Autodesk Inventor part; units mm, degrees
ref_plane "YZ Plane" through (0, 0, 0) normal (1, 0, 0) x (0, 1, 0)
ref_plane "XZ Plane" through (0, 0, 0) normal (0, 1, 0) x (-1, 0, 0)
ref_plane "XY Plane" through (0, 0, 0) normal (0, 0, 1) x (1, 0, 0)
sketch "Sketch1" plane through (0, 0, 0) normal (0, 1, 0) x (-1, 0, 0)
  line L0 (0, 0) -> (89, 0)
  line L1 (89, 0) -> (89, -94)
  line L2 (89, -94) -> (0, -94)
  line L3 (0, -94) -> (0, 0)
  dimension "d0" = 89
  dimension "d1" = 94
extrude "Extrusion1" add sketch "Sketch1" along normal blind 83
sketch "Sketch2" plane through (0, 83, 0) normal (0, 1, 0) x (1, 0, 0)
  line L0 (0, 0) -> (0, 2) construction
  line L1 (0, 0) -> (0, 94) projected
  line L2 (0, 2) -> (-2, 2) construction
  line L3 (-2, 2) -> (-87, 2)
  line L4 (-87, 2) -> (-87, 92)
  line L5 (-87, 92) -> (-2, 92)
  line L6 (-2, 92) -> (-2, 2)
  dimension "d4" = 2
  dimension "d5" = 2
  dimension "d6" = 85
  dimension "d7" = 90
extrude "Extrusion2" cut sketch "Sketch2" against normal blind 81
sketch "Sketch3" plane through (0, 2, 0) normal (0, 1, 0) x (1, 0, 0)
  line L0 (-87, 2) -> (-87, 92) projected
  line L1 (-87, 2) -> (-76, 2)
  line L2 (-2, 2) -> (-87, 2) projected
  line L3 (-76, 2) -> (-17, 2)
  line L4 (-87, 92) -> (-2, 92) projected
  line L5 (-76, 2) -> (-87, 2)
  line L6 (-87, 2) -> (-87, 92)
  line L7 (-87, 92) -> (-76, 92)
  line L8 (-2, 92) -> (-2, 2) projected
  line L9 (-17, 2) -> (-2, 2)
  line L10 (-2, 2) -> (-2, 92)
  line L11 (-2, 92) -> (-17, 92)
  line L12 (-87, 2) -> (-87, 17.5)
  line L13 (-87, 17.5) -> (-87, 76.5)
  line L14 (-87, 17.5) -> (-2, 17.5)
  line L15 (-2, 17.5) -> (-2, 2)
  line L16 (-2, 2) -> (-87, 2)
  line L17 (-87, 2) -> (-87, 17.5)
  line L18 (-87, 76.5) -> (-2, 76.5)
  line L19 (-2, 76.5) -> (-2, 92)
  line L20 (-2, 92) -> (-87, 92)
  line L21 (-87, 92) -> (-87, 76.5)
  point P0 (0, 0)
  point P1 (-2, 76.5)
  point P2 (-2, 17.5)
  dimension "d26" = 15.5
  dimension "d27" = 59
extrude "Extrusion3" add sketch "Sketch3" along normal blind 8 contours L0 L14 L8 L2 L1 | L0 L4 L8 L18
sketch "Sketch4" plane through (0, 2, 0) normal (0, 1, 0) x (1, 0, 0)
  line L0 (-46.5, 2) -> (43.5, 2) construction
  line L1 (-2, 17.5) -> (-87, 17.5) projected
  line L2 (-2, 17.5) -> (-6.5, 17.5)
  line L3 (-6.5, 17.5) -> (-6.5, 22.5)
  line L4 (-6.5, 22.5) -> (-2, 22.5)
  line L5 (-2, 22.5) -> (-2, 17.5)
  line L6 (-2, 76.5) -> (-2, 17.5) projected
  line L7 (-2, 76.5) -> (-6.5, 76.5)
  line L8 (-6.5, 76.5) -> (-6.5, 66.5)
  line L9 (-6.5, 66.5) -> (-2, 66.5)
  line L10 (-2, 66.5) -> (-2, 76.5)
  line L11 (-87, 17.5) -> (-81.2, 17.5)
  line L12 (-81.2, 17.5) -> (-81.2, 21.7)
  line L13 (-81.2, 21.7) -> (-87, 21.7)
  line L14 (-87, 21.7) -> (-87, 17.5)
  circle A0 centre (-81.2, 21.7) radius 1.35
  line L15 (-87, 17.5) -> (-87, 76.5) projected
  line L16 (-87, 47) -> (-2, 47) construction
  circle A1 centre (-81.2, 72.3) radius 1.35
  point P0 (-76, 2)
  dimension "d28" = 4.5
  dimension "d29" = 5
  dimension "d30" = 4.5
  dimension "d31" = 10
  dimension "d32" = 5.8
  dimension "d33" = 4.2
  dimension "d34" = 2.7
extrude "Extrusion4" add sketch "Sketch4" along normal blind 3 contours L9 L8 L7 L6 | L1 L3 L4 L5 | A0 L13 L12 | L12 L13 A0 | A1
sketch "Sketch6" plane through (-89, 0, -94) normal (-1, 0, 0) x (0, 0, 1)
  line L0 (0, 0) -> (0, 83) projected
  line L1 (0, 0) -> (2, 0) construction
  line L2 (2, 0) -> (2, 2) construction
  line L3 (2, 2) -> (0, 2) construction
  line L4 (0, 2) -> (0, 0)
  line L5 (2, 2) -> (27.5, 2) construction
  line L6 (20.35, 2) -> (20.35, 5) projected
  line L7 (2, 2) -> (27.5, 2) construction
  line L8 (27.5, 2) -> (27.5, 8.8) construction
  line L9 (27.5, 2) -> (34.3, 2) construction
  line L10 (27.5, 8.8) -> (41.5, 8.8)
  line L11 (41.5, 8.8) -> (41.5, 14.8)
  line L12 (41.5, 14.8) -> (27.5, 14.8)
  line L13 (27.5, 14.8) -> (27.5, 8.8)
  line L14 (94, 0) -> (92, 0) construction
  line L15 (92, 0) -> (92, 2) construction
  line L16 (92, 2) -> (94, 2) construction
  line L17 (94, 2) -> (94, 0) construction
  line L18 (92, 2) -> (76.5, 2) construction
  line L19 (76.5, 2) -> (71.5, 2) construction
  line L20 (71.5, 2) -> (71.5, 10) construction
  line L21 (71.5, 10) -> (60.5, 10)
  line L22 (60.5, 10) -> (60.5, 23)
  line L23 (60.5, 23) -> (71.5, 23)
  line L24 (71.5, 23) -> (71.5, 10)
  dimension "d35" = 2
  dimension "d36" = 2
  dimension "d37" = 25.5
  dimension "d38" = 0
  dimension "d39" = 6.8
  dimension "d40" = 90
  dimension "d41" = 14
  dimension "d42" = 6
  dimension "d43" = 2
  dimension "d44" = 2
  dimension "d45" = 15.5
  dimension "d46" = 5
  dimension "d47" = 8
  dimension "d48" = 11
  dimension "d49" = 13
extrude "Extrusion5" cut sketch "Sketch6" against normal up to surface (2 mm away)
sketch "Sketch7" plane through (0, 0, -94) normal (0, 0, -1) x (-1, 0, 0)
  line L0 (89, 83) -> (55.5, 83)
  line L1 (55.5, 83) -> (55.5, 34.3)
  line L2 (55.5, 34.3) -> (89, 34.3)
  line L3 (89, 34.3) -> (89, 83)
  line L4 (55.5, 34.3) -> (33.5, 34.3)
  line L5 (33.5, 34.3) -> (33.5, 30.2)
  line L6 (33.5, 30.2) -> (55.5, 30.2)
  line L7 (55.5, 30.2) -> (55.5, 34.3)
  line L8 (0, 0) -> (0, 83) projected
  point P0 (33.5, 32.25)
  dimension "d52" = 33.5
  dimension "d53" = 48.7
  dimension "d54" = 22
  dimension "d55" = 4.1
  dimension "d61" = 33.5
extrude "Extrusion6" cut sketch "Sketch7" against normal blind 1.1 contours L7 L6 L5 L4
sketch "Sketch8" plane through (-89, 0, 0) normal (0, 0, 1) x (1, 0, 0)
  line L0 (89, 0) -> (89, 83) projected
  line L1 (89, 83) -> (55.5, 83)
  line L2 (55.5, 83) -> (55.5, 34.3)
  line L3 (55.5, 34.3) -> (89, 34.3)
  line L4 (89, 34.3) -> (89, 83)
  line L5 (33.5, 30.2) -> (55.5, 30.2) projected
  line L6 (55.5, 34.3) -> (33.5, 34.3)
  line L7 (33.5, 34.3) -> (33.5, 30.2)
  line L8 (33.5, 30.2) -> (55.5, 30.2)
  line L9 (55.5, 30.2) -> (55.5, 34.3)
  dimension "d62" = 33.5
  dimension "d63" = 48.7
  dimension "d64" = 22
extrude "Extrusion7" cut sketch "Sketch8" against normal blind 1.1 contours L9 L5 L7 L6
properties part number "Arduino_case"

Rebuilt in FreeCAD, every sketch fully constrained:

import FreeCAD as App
import Part
import Sketcher

V = App.Vector
Q = App.Units.Quantity

doc = App.newDocument("Part")
body = doc.addObject("PartDesign::Body", "Body")

# Sketch on XZ plane
sketch1 = body.newObject("Sketcher::SketchObject", "Sketch")
sketch1.AttachmentSupport = (doc.getObject("XZ_Plane"), [""])
sketch1.MapMode = "FlatFace"
sketch1.addGeometry([
    Part.LineSegment(V(-89, 0, 0), V(0, 0, 0)),
    Part.LineSegment(V(0, 0, 0), V(0, -94, 0)),
    Part.LineSegment(V(0, -94, 0), V(-89, -94, 0)),
    Part.LineSegment(V(-89, -94, 0), V(-89, 0, 0)),
], False)
sketch1.addConstraint([
    Sketcher.Constraint("Coincident", 0, 2, 1, 1),
    Sketcher.Constraint("Coincident", 1, 2, 2, 1),
    Sketcher.Constraint("Coincident", 2, 2, 3, 1),
    Sketcher.Constraint("Coincident", 3, 2, 0, 1),
    Sketcher.Constraint("Horizontal", 0),
    Sketcher.Constraint("Vertical", 1),
    Sketcher.Constraint("Horizontal", 2),
    Sketcher.Constraint("Vertical", 3),
    Sketcher.Constraint("Coincident", 0, 2, -1, 1),
    Sketcher.Constraint("DistanceX", 0, 1, 0, 2, Q("89 mm")),
    Sketcher.Constraint("DistanceY", 1, 2, 1, 1, Q("94 mm")),
])
pad1 = body.newObject("PartDesign::Pad", "Pad")
pad1.Profile = sketch1
pad1.Length = 83
pad1.Reversed = True

# Sketch on XZ plane
sketch2 = body.newObject("Sketcher::SketchObject", "Sketch001")
sketch2.AttachmentSupport = (doc.getObject("XZ_Plane"), [""])
sketch2.MapMode = "FlatFace"
sketch2.AttachmentOffset = App.Placement(V(0, 0, -83), App.Rotation())
sketch2.addGeometry([
    Part.LineSegment(V(-87, -2, 0), V(-2, -2, 0)),
    Part.LineSegment(V(-2, -2, 0), V(-2, -92, 0)),
    Part.LineSegment(V(-2, -92, 0), V(-87, -92, 0)),
    Part.LineSegment(V(-87, -92, 0), V(-87, -2, 0)),
], False)
sketch2.addConstraint([
    Sketcher.Constraint("Coincident", 0, 2, 1, 1),
    Sketcher.Constraint("Coincident", 1, 2, 2, 1),
    Sketcher.Constraint("Coincident", 2, 2, 3, 1),
    Sketcher.Constraint("Coincident", 3, 2, 0, 1),
    Sketcher.Constraint("Horizontal", 0),
    Sketcher.Constraint("Vertical", 1),
    Sketcher.Constraint("Horizontal", 2),
    Sketcher.Constraint("Vertical", 3),
    Sketcher.Constraint("DistanceX", 0, 1, 0, 2, Q("85 mm")),
    Sketcher.Constraint("DistanceY", 1, 2, 1, 1, Q("90 mm")),
    Sketcher.Constraint("DistanceX", 0, 2, -1, 1, Q("2 mm")),
    Sketcher.Constraint("DistanceY", 0, 2, -1, 1, Q("2 mm")),
])
pocket1 = body.newObject("PartDesign::Pocket", "Pocket")
pocket1.Profile = sketch2
pocket1.Length = 81
pocket1.Reversed = True

# Sketch on XZ plane
sketch3 = body.newObject("Sketcher::SketchObject", "Sketch002")
sketch3.AttachmentSupport = (doc.getObject("XZ_Plane"), [""])
sketch3.MapMode = "FlatFace"
sketch3.AttachmentOffset = App.Placement(V(0, 0, -2), App.Rotation())
sketch3.addGeometry([
    Part.LineSegment(V(-87, -17.5, 0), V(-87, -2, 0)),  # 0
    Part.LineSegment(V(-87, -2, 0), V(-2, -2, 0)),  # 1
    Part.LineSegment(V(-2, -2, 0), V(-2, -17.5, 0)),  # 2
    Part.LineSegment(V(-2, -17.5, 0), V(-87, -17.5, 0)),  # 3
    Part.LineSegment(V(-87, -92, 0), V(-87, -76.5, 0)),  # 4
    Part.LineSegment(V(-87, -76.5, 0), V(-2, -76.5, 0)),  # 5
    Part.LineSegment(V(-2, -76.5, 0), V(-2, -92, 0)),  # 6
    Part.LineSegment(V(-2, -92, 0), V(-87, -92, 0)),  # 7
], False)
sketch3.addConstraint([
    Sketcher.Constraint("Coincident", 0, 2, 1, 1),
    Sketcher.Constraint("Coincident", 1, 2, 2, 1),
    Sketcher.Constraint("Coincident", 2, 2, 3, 1),
    Sketcher.Constraint("Coincident", 3, 2, 0, 1),
    Sketcher.Constraint("Coincident", 4, 2, 5, 1),
    Sketcher.Constraint("Coincident", 5, 2, 6, 1),
    Sketcher.Constraint("Coincident", 6, 2, 7, 1),
    Sketcher.Constraint("Coincident", 7, 2, 4, 1),
    Sketcher.Constraint("Vertical", 0),
    Sketcher.Constraint("Horizontal", 1),
    Sketcher.Constraint("Vertical", 2),
    Sketcher.Constraint("Horizontal", 3),
    Sketcher.Constraint("Vertical", 4),
    Sketcher.Constraint("Horizontal", 5),
    Sketcher.Constraint("Vertical", 6),
    Sketcher.Constraint("Horizontal", 7),
    Sketcher.Constraint("Vertical", 3, 2, 4, 2),
    Sketcher.Constraint("Vertical", 2, 2, 5, 2),
    Sketcher.Constraint("Equal", 2, 4),
    Sketcher.Constraint("DistanceY", 0, 1, 0, 2, Q("15.5 mm")),
    Sketcher.Constraint("DistanceY", 4, 2, 3, 2, Q("59 mm")),
    Sketcher.Constraint("DistanceX", 1, 1, 1, 2, Q("85 mm")),
    Sketcher.Constraint("DistanceX", 0, 2, -1, 1, Q("87 mm")),
    Sketcher.Constraint("DistanceY", 0, 2, -1, 1, Q("2 mm")),
])
pad2 = body.newObject("PartDesign::Pad", "Pad001")
pad2.Profile = sketch3
pad2.Length = 8
pad2.Reversed = True

# Sketch on XZ plane
sketch4 = body.newObject("Sketcher::SketchObject", "Sketch003")
sketch4.AttachmentSupport = (doc.getObject("XZ_Plane"), [""])
sketch4.MapMode = "FlatFace"
sketch4.AttachmentOffset = App.Placement(V(0, 0, -2), App.Rotation())
sketch4.addGeometry([
    Part.LineSegment(V(-6.5, -66.5, 0), V(-2, -66.5, 0)),  # 0
    Part.LineSegment(V(-2, -66.5, 0), V(-2, -76.5, 0)),  # 1
    Part.LineSegment(V(-2, -76.5, 0), V(-6.5, -76.5, 0)),  # 2
    Part.LineSegment(V(-6.5, -76.5, 0), V(-6.5, -66.5, 0)),  # 3
    Part.LineSegment(V(-6.5, -17.5, 0), V(-2, -17.5, 0)),  # 4
    Part.LineSegment(V(-2, -17.5, 0), V(-2, -22.5, 0)),  # 5
    Part.LineSegment(V(-2, -22.5, 0), V(-6.5, -22.5, 0)),  # 6
    Part.LineSegment(V(-6.5, -22.5, 0), V(-6.5, -17.5, 0)),  # 7
    Part.Circle(V(-81.2, -21.7, 0), V(0, 0, 1), 1.35),  # 8
    Part.Circle(V(-81.2, -72.3, 0), V(0, 0, 1), 1.35),  # 9
], False)
sketch4.addConstraint([
    Sketcher.Constraint("Coincident", 0, 2, 1, 1),
    Sketcher.Constraint("Coincident", 1, 2, 2, 1),
    Sketcher.Constraint("Coincident", 2, 2, 3, 1),
    Sketcher.Constraint("Coincident", 3, 2, 0, 1),
    Sketcher.Constraint("Coincident", 4, 2, 5, 1),
    Sketcher.Constraint("Coincident", 5, 2, 6, 1),
    Sketcher.Constraint("Coincident", 6, 2, 7, 1),
    Sketcher.Constraint("Coincident", 7, 2, 4, 1),
    Sketcher.Constraint("Horizontal", 0),
    Sketcher.Constraint("Vertical", 1),
    Sketcher.Constraint("Horizontal", 2),
    Sketcher.Constraint("Vertical", 3),
    Sketcher.Constraint("Horizontal", 4),
    Sketcher.Constraint("Vertical", 5),
    Sketcher.Constraint("Horizontal", 6),
    Sketcher.Constraint("Vertical", 7),
    Sketcher.Constraint("Equal", 8, 9),
    Sketcher.Constraint("Vertical", 8, 3, 9, 3),
    Sketcher.Constraint("Vertical", 1, 2, 4, 2),
    Sketcher.Constraint("Vertical", 3, 2, 6, 2),
    Sketcher.Constraint("Diameter", 8, Q("2.7 mm")),
    Sketcher.Constraint("DistanceY", 1, 2, 1, 1, Q("10 mm")),
    Sketcher.Constraint("DistanceY", 5, 2, 5, 1, Q("5 mm")),
    Sketcher.Constraint("DistanceX", 0, 1, 0, 2, Q("4.5 mm")),
    Sketcher.Constraint("DistanceY", 9, 3, 0, 2, Q("5.8 mm")),
    Sketcher.Constraint("DistanceY", 8, 3, 4, 2, Q("4.2 mm")),
    Sketcher.Constraint("DistanceX", 0, 2, -1, 1, Q("2 mm")),
    Sketcher.Constraint("DistanceY", 0, 2, 4, 2, Q("49 mm")),
    Sketcher.Constraint("DistanceX", 8, 3, -1, 1, Q("81.2 mm")),
    Sketcher.Constraint("DistanceY", 8, 3, -1, 1, Q("21.7 mm")),
])
pad3 = body.newObject("PartDesign::Pad", "Pad002")
pad3.Profile = sketch4
pad3.Length = 3
pad3.Reversed = True

# Sketch on YZ plane
sketch5 = body.newObject("Sketcher::SketchObject", "Sketch004")
sketch5.AttachmentSupport = (doc.getObject("YZ_Plane"), [""])
sketch5.MapMode = "FlatFace"
sketch5.AttachmentOffset = App.Placement(V(0, 0, -89), App.Rotation())
sketch5.addGeometry([
    Part.LineSegment(V(14.8, -66.5, 0), V(8.8, -66.5, 0)),  # 0
    Part.LineSegment(V(8.8, -66.5, 0), V(8.8, -52.5, 0)),  # 1
    Part.LineSegment(V(8.8, -52.5, 0), V(14.8, -52.5, 0)),  # 2
    Part.LineSegment(V(14.8, -52.5, 0), V(14.8, -66.5, 0)),  # 3
    Part.LineSegment(V(10, -33.5, 0), V(10, -22.5, 0)),  # 4
    Part.LineSegment(V(10, -22.5, 0), V(23, -22.5, 0)),  # 5
    Part.LineSegment(V(23, -22.5, 0), V(23, -33.5, 0)),  # 6
    Part.LineSegment(V(23, -33.5, 0), V(10, -33.5, 0)),  # 7
], False)
sketch5.addConstraint([
    Sketcher.Constraint("Coincident", 0, 2, 1, 1),
    Sketcher.Constraint("Coincident", 1, 2, 2, 1),
    Sketcher.Constraint("Coincident", 2, 2, 3, 1),
    Sketcher.Constraint("Coincident", 3, 2, 0, 1),
    Sketcher.Constraint("Coincident", 4, 2, 5, 1),
    Sketcher.Constraint("Coincident", 5, 2, 6, 1),
    Sketcher.Constraint("Coincident", 6, 2, 7, 1),
    Sketcher.Constraint("Coincident", 7, 2, 4, 1),
    Sketcher.Constraint("Horizontal", 0),
    Sketcher.Constraint("Vertical", 1),
    Sketcher.Constraint("Horizontal", 2),
    Sketcher.Constraint("Vertical", 3),
    Sketcher.Constraint("Vertical", 4),
    Sketcher.Constraint("Horizontal", 5),
    Sketcher.Constraint("Vertical", 6),
    Sketcher.Constraint("Horizontal", 7),
    Sketcher.Constraint("DistanceX", 0, 2, 0, 1, Q("6 mm")),
    Sketcher.Constraint("DistanceX", 5, 1, 5, 2, Q("13 mm")),
    Sketcher.Constraint("DistanceY", 1, 1, 1, 2, Q("14 mm")),
    Sketcher.Constraint("DistanceY", 4, 1, 4, 2, Q("11 mm")),
    Sketcher.Constraint("DistanceX", -1, 1, 4, 2, Q("10 mm")),
    Sketcher.Constraint("DistanceY", 1, 2, 4, 2, Q("30 mm")),
    Sketcher.Constraint("DistanceX", -1, 1, 0, 2, Q("8.8 mm")),
    Sketcher.Constraint("DistanceY", 0, 2, -1, 1, Q("66.5 mm")),
])
pocket2 = body.newObject("PartDesign::Pocket", "Pocket001")
pocket2.Profile = sketch5
pocket2.Length = 2
pocket2.Reversed = True

# Sketch on XY plane
sketch6 = body.newObject("Sketcher::SketchObject", "Sketch005")
sketch6.AttachmentSupport = (doc.getObject("XY_Plane"), [""])
sketch6.MapMode = "FlatFace"
sketch6.AttachmentOffset = App.Placement(V(0, 0, -94), App.Rotation())
sketch6.addGeometry([
    Part.LineSegment(V(-55.5, 30.2, 0), V(-55.5, 34.3, 0)),
    Part.LineSegment(V(-55.5, 34.3, 0), V(-33.5, 34.3, 0)),
    Part.LineSegment(V(-33.5, 34.3, 0), V(-33.5, 30.2, 0)),
    Part.LineSegment(V(-33.5, 30.2, 0), V(-55.5, 30.2, 0)),
], False)
sketch6.addConstraint([
    Sketcher.Constraint("Coincident", 0, 2, 1, 1),
    Sketcher.Constraint("Coincident", 1, 2, 2, 1),
    Sketcher.Constraint("Coincident", 2, 2, 3, 1),
    Sketcher.Constraint("Coincident", 3, 2, 0, 1),
    Sketcher.Constraint("Vertical", 0),
    Sketcher.Constraint("Horizontal", 1),
    Sketcher.Constraint("Vertical", 2),
    Sketcher.Constraint("Horizontal", 3),
    Sketcher.Constraint("DistanceX", 1, 1, 1, 2, Q("22 mm")),
    Sketcher.Constraint("DistanceY", 0, 1, 0, 2, Q("4.1 mm")),
    Sketcher.Constraint("DistanceX", 1, 2, -1, 1, Q("33.5 mm")),
    Sketcher.Constraint("DistanceY", -1, 1, 0, 2, Q("34.3 mm")),
])
pocket3 = body.newObject("PartDesign::Pocket", "Pocket002")
pocket3.Profile = sketch6
pocket3.Length = 1.1
pocket3.Reversed = True

# Sketch on XY plane
sketch7 = body.newObject("Sketcher::SketchObject", "Sketch006")
sketch7.AttachmentSupport = (doc.getObject("XY_Plane"), [""])
sketch7.MapMode = "FlatFace"
sketch7.addGeometry([
    Part.LineSegment(V(-33.5, 30.2, 0), V(-33.5, 34.3, 0)),
    Part.LineSegment(V(-33.5, 34.3, 0), V(-55.5, 34.3, 0)),
    Part.LineSegment(V(-55.5, 34.3, 0), V(-55.5, 30.2, 0)),
    Part.LineSegment(V(-55.5, 30.2, 0), V(-33.5, 30.2, 0)),
], False)
sketch7.addConstraint([
    Sketcher.Constraint("Coincident", 0, 2, 1, 1),
    Sketcher.Constraint("Coincident", 1, 2, 2, 1),
    Sketcher.Constraint("Coincident", 2, 2, 3, 1),
    Sketcher.Constraint("Coincident", 3, 2, 0, 1),
    Sketcher.Constraint("Vertical", 0),
    Sketcher.Constraint("Horizontal", 1),
    Sketcher.Constraint("Vertical", 2),
    Sketcher.Constraint("Horizontal", 3),
    Sketcher.Constraint("DistanceX", 1, 2, 1, 1, Q("22 mm")),
    Sketcher.Constraint("DistanceX", 0, 2, -1, 1, Q("33.5 mm")),
    Sketcher.Constraint("DistanceY", 0, 1, 0, 2, Q("4.1 mm")),
    Sketcher.Constraint("DistanceY", -1, 1, 0, 2, Q("34.3 mm")),
])
pocket4 = body.newObject("PartDesign::Pocket", "Pocket003")
pocket4.Profile = sketch7
pocket4.Length = 1.1

doc.recompute()
